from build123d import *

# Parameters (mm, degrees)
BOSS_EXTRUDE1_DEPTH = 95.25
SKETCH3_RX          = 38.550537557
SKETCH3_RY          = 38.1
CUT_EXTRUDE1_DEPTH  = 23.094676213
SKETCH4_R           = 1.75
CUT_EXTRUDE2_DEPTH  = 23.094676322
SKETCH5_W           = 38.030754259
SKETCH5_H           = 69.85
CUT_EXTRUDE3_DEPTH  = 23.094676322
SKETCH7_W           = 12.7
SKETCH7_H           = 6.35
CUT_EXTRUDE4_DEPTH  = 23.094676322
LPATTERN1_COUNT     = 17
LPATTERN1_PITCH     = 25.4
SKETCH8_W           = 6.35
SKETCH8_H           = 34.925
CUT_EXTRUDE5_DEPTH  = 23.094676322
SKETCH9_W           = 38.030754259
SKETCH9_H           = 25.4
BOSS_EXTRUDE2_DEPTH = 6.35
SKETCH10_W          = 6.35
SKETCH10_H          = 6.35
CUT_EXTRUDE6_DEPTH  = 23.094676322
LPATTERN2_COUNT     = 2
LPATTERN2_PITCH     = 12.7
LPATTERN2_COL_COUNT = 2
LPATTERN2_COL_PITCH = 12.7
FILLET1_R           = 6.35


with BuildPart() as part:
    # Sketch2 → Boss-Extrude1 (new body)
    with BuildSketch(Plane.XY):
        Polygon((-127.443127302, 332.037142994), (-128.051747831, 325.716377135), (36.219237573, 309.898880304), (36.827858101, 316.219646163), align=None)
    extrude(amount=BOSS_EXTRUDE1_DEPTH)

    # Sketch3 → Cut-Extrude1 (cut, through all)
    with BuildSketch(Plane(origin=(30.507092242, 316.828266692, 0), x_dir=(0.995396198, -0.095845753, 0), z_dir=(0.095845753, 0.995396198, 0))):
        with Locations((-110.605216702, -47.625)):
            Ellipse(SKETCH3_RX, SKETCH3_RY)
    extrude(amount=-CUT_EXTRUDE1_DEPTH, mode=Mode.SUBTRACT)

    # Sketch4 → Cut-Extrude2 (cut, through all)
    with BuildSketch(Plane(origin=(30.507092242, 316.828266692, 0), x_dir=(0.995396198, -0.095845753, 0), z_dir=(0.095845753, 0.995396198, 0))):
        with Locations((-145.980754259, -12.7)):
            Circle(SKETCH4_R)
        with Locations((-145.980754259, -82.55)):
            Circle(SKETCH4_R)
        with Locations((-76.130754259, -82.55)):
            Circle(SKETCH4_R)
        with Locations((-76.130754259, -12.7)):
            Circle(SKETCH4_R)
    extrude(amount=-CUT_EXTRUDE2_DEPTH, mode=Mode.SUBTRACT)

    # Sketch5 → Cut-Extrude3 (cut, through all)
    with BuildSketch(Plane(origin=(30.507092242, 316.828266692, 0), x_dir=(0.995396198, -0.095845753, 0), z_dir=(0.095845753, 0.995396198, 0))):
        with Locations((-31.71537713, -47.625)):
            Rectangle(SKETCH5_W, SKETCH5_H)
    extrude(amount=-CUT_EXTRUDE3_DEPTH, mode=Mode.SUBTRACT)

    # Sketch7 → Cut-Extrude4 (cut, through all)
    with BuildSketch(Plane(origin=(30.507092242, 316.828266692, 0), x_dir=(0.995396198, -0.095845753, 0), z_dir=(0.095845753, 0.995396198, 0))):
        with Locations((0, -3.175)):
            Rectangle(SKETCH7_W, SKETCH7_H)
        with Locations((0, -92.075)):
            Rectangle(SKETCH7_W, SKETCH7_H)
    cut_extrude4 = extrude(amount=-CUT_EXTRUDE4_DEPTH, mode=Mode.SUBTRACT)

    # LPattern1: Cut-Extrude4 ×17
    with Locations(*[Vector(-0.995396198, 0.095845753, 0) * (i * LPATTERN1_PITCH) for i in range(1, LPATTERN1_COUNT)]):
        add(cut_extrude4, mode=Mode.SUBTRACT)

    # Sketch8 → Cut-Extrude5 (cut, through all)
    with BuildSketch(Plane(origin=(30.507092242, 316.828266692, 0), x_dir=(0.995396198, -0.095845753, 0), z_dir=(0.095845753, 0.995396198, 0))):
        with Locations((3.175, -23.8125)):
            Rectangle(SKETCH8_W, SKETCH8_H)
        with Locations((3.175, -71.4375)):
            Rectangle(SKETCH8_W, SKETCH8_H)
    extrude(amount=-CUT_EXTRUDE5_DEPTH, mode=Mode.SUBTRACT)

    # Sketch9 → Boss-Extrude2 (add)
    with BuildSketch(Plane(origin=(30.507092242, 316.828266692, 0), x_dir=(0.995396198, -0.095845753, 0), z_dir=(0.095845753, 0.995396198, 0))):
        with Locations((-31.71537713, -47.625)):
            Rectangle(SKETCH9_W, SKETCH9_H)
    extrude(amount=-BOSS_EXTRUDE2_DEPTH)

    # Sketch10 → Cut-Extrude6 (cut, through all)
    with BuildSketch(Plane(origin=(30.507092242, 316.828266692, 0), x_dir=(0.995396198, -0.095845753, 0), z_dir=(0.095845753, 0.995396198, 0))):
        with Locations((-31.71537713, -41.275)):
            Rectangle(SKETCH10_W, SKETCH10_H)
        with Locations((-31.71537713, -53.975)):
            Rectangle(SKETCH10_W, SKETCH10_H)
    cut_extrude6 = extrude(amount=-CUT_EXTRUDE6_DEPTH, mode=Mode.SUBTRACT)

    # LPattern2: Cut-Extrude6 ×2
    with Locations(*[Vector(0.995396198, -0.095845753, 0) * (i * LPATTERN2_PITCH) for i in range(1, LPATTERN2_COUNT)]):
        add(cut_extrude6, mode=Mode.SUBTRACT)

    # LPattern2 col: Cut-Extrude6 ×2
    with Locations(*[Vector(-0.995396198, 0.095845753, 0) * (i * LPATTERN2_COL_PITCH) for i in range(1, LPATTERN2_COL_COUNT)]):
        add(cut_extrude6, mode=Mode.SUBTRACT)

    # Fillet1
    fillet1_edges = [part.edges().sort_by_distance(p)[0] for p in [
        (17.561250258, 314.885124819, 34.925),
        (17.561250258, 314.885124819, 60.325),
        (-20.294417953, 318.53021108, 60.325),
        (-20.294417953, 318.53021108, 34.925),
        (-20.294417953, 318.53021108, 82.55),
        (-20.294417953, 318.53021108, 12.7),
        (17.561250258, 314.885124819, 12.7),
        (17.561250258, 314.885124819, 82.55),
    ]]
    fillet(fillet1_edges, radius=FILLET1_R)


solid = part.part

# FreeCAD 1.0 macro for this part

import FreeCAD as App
import Part
import Sketcher

V = App.Vector
Q = App.Units.Quantity


def edges_at(feature, points):
    """Names of the edges that pass closest to the given points."""
    edges = feature.Shape.Edges
    near = lambda p: min(range(len(edges)), key=lambda i: edges[i].distToShape(Part.Vertex(*p))[0])
    return sorted({f"Edge{near(p) + 1}" for p in points})


def add_polygon(sketch, points):
    """Adds a closed chain of lines whose ends are joined by coincident constraints."""
    first, n = sketch.GeometryCount, len(points)
    for a, b in zip(points, points[1:] + points[:1]):
        sketch.addGeometry(Part.LineSegment(App.Vector(*a, 0), App.Vector(*b, 0)), False)
    for i in range(n):
        sketch.addConstraint(Sketcher.Constraint("Coincident", first + i, 2, first + (i + 1) % n, 1))

doc = App.newDocument("Part")
body = doc.addObject("PartDesign::Body", "Body")

# Sketch on XY plane
sketch1 = doc.addObject("Sketcher::SketchObject", "Sketch")
body.addObject(sketch1)
sketch1.AttachmentSupport = (doc.XY_Plane, [""])
sketch1.MapMode = "FlatFace"
add_polygon(sketch1, [(-127, 332), (-128, 326), (36, 310), (37, 316)])  # lines 0-3
sketch1.addConstraint([
    Sketcher.Constraint("Perpendicular", 0, 1),
    Sketcher.Constraint("Perpendicular", 1, 2),
    Sketcher.Constraint("Perpendicular", 2, 3),
    Sketcher.Constraint("Angle", 0, Q("-95.5 deg")),
    Sketcher.Constraint("Distance", 0, Q("0.25 in")),
    Sketcher.Constraint("DistanceX", 3, 2, 1, 2, Q("6.4434002 in")),
    Sketcher.Constraint("DistanceY", -1, 1, 1, 2, 309.89888),
    Sketcher.Constraint("DistanceX", -1, 1, 2, 2, 36.827858),
])
pad1 = doc.addObject("PartDesign::Pad", "Pad")
body.addObject(pad1)
pad1.Profile = sketch1
pad1.Length = Q("3.75 in")

# Sketch on an angled plane
sketch2 = doc.addObject("Sketcher::SketchObject", "Sketch001")
body.addObject(sketch2)
sketch2.Placement = App.Placement(V(30.507092, 316.828267, 0), App.Rotation(V(0.995396198, -0.095845753, 0), V(0, 0, -0.999999999), V(0.095845753, 0.995396198, 0), "ZXY"))
sketch2.addGeometry(Part.Ellipse(V(-72.054679, -47.625, 0), V(-110.605217, -9.525, 0), V(-110.605217, -47.625, 0)), False)
sketch2.addConstraint(Sketcher.Constraint("Block", 0))
pocket1 = doc.addObject("PartDesign::Pocket", "Pocket")
body.addObject(pocket1)
pocket1.Profile = sketch2
pocket1.Type = "ThroughAll"

# Sketch on an angled plane
sketch3 = doc.addObject("Sketcher::SketchObject", "Sketch002")
body.addObject(sketch3)
sketch3.Placement = App.Placement(V(30.507092, 316.828267, 0), App.Rotation(V(0.995396198, -0.095845753, 0), V(0, 0, -0.999999999), V(0.095845753, 0.995396198, 0), "ZXY"))
sketch3.addGeometry([
    Part.Circle(V(-146, -12.7, 0), V(0, 0, 1), 1.8),
    Part.Circle(V(-146, -82.5, 0), V(0, 0, 1), 1.8),
    Part.Circle(V(-76.1, -82.5, 0), V(0, 0, 1), 1.8),
    Part.Circle(V(-76.1, -12.7, 0), V(0, 0, 1), 1.8),
], False)
sketch3.addConstraint([
    Sketcher.Constraint("Equal", 0, 1),
    Sketcher.Constraint("Equal", 1, 2),
    Sketcher.Constraint("Equal", 2, 3),
    Sketcher.Constraint("Horizontal", 1, 3, 2, 3),
    Sketcher.Constraint("Horizontal", 0, 3, 3, 3),
    Sketcher.Constraint("Vertical", 0, 3, 1, 3),
    Sketcher.Constraint("Vertical", 2, 3, 3, 3),
    Sketcher.Constraint("DistanceY", 0, 3, -1, 1, Q("0.5 in")),
    Sketcher.Constraint("Diameter", 0, 3.5),
    Sketcher.Constraint("DistanceY", 1, 3, -1, 1, Q("3.25 in")),
    Sketcher.Constraint("DistanceX", 1, 3, 2, 3, Q("2.75 in")),
    Sketcher.Constraint("DistanceX", 0, 3, -1, 1, 145.980754),
])
pocket2 = doc.addObject("PartDesign::Pocket", "Pocket001")
body.addObject(pocket2)
pocket2.Profile = sketch3
pocket2.Type = "ThroughAll"

# Sketch on an angled plane
sketch4 = doc.addObject("Sketcher::SketchObject", "Sketch003")
body.addObject(sketch4)
sketch4.Placement = App.Placement(V(30.507092, 316.828267, 0), App.Rotation(V(0.995396198, -0.095845753, 0), V(0, 0, -0.999999999), V(0.095845753, 0.995396198, 0), "ZXY"))
add_polygon(sketch4, [(-51, -13), (-51, -83), (-13, -83), (-13, -13)])  # lines 0-3
sketch4.addConstraint([
    Sketcher.Constraint("Vertical", 0),
    Sketcher.Constraint("Horizontal", 1),
    Sketcher.Constraint("Vertical", 2),
    Sketcher.Constraint("Horizontal", 3),
    Sketcher.Constraint("DistanceY", 0, 2, 0, 1, Q("2.75 in")),
    Sketcher.Constraint("DistanceX", 1, 2, -1, 1, Q("0.5 in")),
    Sketcher.Constraint("DistanceY", 2, 2, -1, 1, Q("0.5 in")),
    Sketcher.Constraint("DistanceX", 1, 1, 1, 2, 38.030754),
])
pocket3 = doc.addObject("PartDesign::Pocket", "Pocket002")
body.addObject(pocket3)
pocket3.Profile = sketch4
pocket3.Type = "ThroughAll"

# Sketch on an angled plane
sketch5 = doc.addObject("Sketcher::SketchObject", "Sketch004")
body.addObject(sketch5)
sketch5.Placement = App.Placement(V(30.507092, 316.828267, 0), App.Rotation(V(0.995396198, -0.095845753, 0), V(0, 0, -0.999999999), V(0.095845753, 0.995396198, 0), "ZXY"))
add_polygon(sketch5, [(-6, 0), (-6, -6), (6, -6), (6, 0)])  # lines 0-3
add_polygon(sketch5, [(-6, -89), (-6, -95), (6, -95), (6, -89)])  # lines 4-7
sketch5.addConstraint([
    Sketcher.Constraint("Vertical", 0),
    Sketcher.Constraint("Horizontal", 1),
    Sketcher.Constraint("Vertical", 2),
    Sketcher.Constraint("Horizontal", 3),
    Sketcher.Constraint("Vertical", 4),
    Sketcher.Constraint("Horizontal", 5),
    Sketcher.Constraint("Vertical", 6),
    Sketcher.Constraint("Horizontal", 7),
    Sketcher.Constraint("Symmetric", 2, 2, 3, 2, -1, 1),
    Sketcher.Constraint("Vertical", 3, 2, 4, 2),
    Sketcher.Constraint("Vertical", 2, 2, 5, 2),
    Sketcher.Constraint("Equal", 2, 4),
    Sketcher.Constraint("DistanceX", 1, 1, 1, 2, Q("0.5 in")),
    Sketcher.Constraint("DistanceY", 0, 2, 0, 1, Q("0.25 in")),
    Sketcher.Constraint("DistanceY", 6, 2, -1, 1, Q("3.5 in")),
])
pocket4 = doc.addObject("PartDesign::Pocket", "Pocket003")
body.addObject(pocket4)
pocket4.Profile = sketch5
pocket4.Type = "ThroughAll"
doc.recompute()

datumline = doc.addObject("PartDesign::Line", "DatumLine")
body.addObject(datumline)
datumline.Placement = App.Placement(V(0, 0, 0), App.Rotation(V(0, 0, 1), V(-0.995396198, 0.095845753, 0)))
linearpattern = doc.addObject("PartDesign::LinearPattern", "LinearPattern")
body.addObject(linearpattern)
linearpattern.Originals = [pocket4]
linearpattern.Direction = (datumline, [""])
linearpattern.Mode = "offset"
linearpattern.Offset = Q("1 in")
linearpattern.Occurrences = 17
body.Tip = linearpattern

# Sketch on an angled plane
sketch6 = doc.addObject("Sketcher::SketchObject", "Sketch005")
body.addObject(sketch6)
sketch6.Placement = App.Placement(V(30.507092, 316.828267, 0), App.Rotation(V(0.995396198, -0.095845753, 0), V(0, 0, -0.999999999), V(0.095845753, 0.995396198, 0), "ZXY"))
add_polygon(sketch6, [(0, -6), (0, -41), (6, -41), (6, -6)])  # lines 0-3
add_polygon(sketch6, [(0, -54), (0, -89), (6, -89), (6, -54)])  # lines 4-7
sketch6.addConstraint([
    Sketcher.Constraint("Vertical", 0),
    Sketcher.Constraint("Horizontal", 1),
    Sketcher.Constraint("Vertical", 2),
    Sketcher.Constraint("Horizontal", 3),
    Sketcher.Constraint("Vertical", 4),
    Sketcher.Constraint("Horizontal", 5),
    Sketcher.Constraint("Vertical", 6),
    Sketcher.Constraint("Horizontal", 7),
    Sketcher.Constraint("PointOnObject", 0, 2, -2),
    Sketcher.Constraint("PointOnObject", 4, 2, -2),
    Sketcher.Constraint("Vertical", 2, 2, 5, 2),
    Sketcher.Constraint("Equal", 2, 4),
    Sketcher.Constraint("DistanceX", 1, 1, 1, 2, Q("0.25 in")),
    Sketcher.Constraint("DistanceY", 4, 2, -1, 1, Q("3.5 in")),
    Sketcher.Constraint("DistanceY", 6, 2, 1, 2, Q("0.5 in")),
    Sketcher.Constraint("DistanceY", 0, 2, 0, 1, Q("1.375 in")),
])
pocket5 = doc.addObject("PartDesign::Pocket", "Pocket004")
body.addObject(pocket5)
pocket5.Profile = sketch6
pocket5.Type = "ThroughAll"

# Sketch on an angled plane
sketch7 = doc.addObject("Sketcher::SketchObject", "Sketch006")
body.addObject(sketch7)
sketch7.Placement = App.Placement(V(30.507092, 316.828267, 0), App.Rotation(V(0.995396198, -0.095845753, 0), V(0, 0, -0.999999999), V(0.095845753, 0.995396198, 0), "ZXY"))
add_polygon(sketch7, [(-51, -35), (-51, -60), (-13, -60), (-13, -35)])  # lines 0-3
sketch7.addConstraint([
    Sketcher.Constraint("Vertical", 0),
    Sketcher.Constraint("Horizontal", 1),
    Sketcher.Constraint("Vertical", 2),
    Sketcher.Constraint("Horizontal", 3),
    Sketcher.Constraint("DistanceY", 0, 2, 0, 1, Q("1 in")),
    Sketcher.Constraint("DistanceX", 1, 2, -1, 1, Q("0.5 in")),
    Sketcher.Constraint("DistanceY", 0, 2, -1, 1, Q("2.375 in")),
    Sketcher.Constraint("DistanceX", 1, 1, 1, 2, 38.030754),
])
pad2 = doc.addObject("PartDesign::Pad", "Pad001")
body.addObject(pad2)
pad2.Profile = sketch7
pad2.Length = Q("0.25 in")
pad2.Reversed = True

# Sketch on an angled plane
sketch8 = doc.addObject("Sketcher::SketchObject", "Sketch007")
body.addObject(sketch8)
sketch8.Placement = App.Placement(V(30.507092, 316.828267, 0), App.Rotation(V(0.995396198, -0.095845753, 0), V(0, 0, -0.999999999), V(0.095845753, 0.995396198, 0), "ZXY"))
add_polygon(sketch8, [(-35, -38), (-35, -44), (-29, -44), (-29, -38)])  # lines 0-3
add_polygon(sketch8, [(-35, -51), (-35, -57), (-29, -57), (-29, -51)])  # lines 4-7
sketch8.addConstraint([
    Sketcher.Constraint("Vertical", 0),
    Sketcher.Constraint("Horizontal", 1),
    Sketcher.Constraint("Vertical", 2),
    Sketcher.Constraint("Horizontal", 3),
    Sketcher.Constraint("Vertical", 4),
    Sketcher.Constraint("Horizontal", 5),
    Sketcher.Constraint("Vertical", 6),
    Sketcher.Constraint("Horizontal", 7),
    Sketcher.Constraint("Vertical", 3, 2, 4, 2),
    Sketcher.Constraint("Vertical", 2, 2, 5, 2),
    Sketcher.Constraint("Equal", 7, 0),
    Sketcher.Constraint("Equal", 2, 4),
    Sketcher.Constraint("DistanceY", 6, 2, -1, 1, Q("2 in")),
    Sketcher.Constraint("DistanceX", 1, 1, 1, 2, Q("0.25 in")),
    Sketcher.Constraint("DistanceY", 2, 2, -1, 1, Q("1.5 in")),
    Sketcher.Constraint("DistanceX", 0, 2, -1, 1, 34.890377),
])
pocket6 = doc.addObject("PartDesign::Pocket", "Pocket005")
body.addObject(pocket6)
pocket6.Profile = sketch8
pocket6.Type = "ThroughAll"
doc.recompute()

datumline2 = doc.addObject("PartDesign::Line", "DatumLine001")
body.addObject(datumline2)
datumline2.Placement = App.Placement(V(0, 0, 0), App.Rotation(V(0, 0, 1), V(0.995396198, -0.095845753, 0)))
linearpattern2 = doc.addObject("PartDesign::LinearPattern", "LinearPattern001")
body.addObject(linearpattern2)
linearpattern2.Originals = [pocket6]
linearpattern2.Direction = (datumline2, [""])
linearpattern2.Mode = "offset"
linearpattern2.Offset = Q("0.5 in")
linearpattern2.Occurrences = 2
body.Tip = linearpattern2
doc.recompute()

datumline3 = doc.addObject("PartDesign::Line", "DatumLine002")
body.addObject(datumline3)
datumline3.Placement = App.Placement(V(0, 0, 0), App.Rotation(V(0, 0, 1), V(-0.995396198, 0.095845753, 0)))
linearpattern3 = doc.addObject("PartDesign::LinearPattern", "LinearPattern002")
body.addObject(linearpattern3)
linearpattern3.Originals = [pocket6]
linearpattern3.Direction = (datumline3, [""])
linearpattern3.Mode = "offset"
linearpattern3.Offset = Q("0.5 in")
linearpattern3.Occurrences = 2
body.Tip = linearpattern3
doc.recompute()

fillet = doc.addObject("PartDesign::Fillet", "Fillet")
body.addObject(fillet)
fillet.Base = (linearpattern3, edges_at(linearpattern3, [
    (17.561, 314.885, 34.925),
    (17.561, 314.885, 60.325),
    (-20.294, 318.53, 60.325),
    (-20.294, 318.53, 34.925),
    (-20.294, 318.53, 82.55),
    (-20.294, 318.53, 12.7),
    (17.561, 314.885, 12.7),
    (17.561, 314.885, 82.55),
]))
fillet.Radius = Q("0.25 in")

doc.recompute()
